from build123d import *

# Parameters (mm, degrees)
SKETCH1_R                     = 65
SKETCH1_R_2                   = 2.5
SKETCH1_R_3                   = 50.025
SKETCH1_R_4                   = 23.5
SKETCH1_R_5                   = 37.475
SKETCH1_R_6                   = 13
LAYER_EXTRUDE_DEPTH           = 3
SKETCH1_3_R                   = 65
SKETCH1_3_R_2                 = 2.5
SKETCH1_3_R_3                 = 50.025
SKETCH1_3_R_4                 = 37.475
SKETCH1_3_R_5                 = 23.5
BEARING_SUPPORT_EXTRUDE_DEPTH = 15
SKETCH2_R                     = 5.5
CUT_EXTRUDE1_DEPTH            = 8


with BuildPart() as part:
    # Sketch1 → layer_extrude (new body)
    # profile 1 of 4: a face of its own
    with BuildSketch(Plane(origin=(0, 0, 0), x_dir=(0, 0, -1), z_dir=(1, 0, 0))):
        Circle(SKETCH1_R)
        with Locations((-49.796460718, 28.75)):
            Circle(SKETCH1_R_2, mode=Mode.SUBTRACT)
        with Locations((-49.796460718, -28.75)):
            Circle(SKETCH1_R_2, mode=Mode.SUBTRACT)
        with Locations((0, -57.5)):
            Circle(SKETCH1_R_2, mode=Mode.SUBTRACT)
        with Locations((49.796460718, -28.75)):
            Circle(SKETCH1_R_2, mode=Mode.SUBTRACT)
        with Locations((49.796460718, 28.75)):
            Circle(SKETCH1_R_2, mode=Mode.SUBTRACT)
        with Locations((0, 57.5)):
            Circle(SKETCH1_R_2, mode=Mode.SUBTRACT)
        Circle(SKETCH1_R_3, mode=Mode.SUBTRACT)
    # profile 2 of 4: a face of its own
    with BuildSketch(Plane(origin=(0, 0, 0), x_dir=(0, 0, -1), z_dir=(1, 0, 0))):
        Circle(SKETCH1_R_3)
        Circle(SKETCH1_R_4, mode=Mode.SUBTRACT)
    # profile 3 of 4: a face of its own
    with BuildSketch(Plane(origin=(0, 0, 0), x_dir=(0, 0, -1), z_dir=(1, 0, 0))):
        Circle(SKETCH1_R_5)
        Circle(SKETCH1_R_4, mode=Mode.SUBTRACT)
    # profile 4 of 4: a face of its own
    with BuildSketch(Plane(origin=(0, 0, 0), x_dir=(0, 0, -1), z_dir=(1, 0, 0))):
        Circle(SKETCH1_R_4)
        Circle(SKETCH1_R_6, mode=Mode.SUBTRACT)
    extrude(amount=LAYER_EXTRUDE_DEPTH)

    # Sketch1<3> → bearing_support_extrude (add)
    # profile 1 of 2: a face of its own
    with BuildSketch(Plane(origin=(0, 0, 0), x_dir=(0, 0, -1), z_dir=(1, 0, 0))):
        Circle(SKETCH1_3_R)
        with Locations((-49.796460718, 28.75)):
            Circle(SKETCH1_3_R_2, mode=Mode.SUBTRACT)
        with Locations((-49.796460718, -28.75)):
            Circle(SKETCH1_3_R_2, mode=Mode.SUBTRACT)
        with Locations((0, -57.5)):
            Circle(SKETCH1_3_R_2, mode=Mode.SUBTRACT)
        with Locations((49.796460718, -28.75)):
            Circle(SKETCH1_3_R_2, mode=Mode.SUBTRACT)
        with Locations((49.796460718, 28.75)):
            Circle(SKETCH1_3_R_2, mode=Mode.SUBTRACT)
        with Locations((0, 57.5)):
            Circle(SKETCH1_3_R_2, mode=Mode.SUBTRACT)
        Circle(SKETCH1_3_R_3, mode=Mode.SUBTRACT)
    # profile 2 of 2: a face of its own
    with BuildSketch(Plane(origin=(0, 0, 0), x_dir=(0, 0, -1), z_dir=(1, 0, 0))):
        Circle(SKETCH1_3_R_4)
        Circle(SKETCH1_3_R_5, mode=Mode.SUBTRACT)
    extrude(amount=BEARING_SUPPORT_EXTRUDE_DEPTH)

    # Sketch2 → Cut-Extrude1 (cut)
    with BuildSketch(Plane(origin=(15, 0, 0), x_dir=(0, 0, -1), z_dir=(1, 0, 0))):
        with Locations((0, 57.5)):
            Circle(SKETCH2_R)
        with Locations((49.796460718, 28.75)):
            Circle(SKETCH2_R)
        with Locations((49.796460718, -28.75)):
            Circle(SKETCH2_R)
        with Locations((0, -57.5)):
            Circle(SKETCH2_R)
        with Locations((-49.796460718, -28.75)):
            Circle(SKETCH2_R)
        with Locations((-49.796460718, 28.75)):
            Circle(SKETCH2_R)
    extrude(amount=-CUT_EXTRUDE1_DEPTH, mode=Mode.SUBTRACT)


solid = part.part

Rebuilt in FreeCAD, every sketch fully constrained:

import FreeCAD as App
import Part
import Sketcher

V = App.Vector
Q = App.Units.Quantity

doc = App.newDocument("Part")
params = doc.addObject("Spreadsheet::Sheet", "Params")
for row, (alias, value) in enumerate([
    ("sketch1_diameter", "130 mm"),
    ("sketch1_diameter2", "5 mm"),
    ("sketch1_diameter3", "26 mm"),
    ("pad1_length", "3 mm"),
    ("sketch2_diameter", "130 mm"),
    ("sketch2_diameter2", "5 mm"),
    ("sketch2_diameter3", "47 mm"),
    ("sketch2_diameter4", "100.05 mm"),
    ("sketch2_diameter5", "74.95 mm"),
    ("pad2_length", "15 mm"),
    ("sketch3_diameter", "11 mm"),
    ("pocket1_length", "8 mm"),
], start=1):
    params.set(f"A{row}", alias)
    params.set(f"B{row}", "=" + value)
    params.setAlias(f"B{row}", alias)

body = doc.addObject("PartDesign::Body", "Body")

# Sketch on YZ plane
sketch1 = doc.addObject("Sketcher::SketchObject", "Sketch")
body.addObject(sketch1)
sketch1.AttachmentSupport = (doc.YZ_Plane, [""])
sketch1.MapMode = "FlatFace"
sketch1.addGeometry(Part.Circle(V(0, 0, 0), V(0, 0, 1), 65), False)
sketch1.addGeometry(Part.Circle(V(-28.8, 49.8, 0), V(0, 0, 1), 2.5), False)
sketch1.addGeometry(Part.Circle(V(-57.5, 0, 0), V(0, 0, 1), 2.5), False)
sketch1.addGeometry(Part.Circle(V(-28.8, -49.8, 0), V(0, 0, 1), 2.5), False)
sketch1.addGeometry(Part.Circle(V(28.8, 49.8, 0), V(0, 0, 1), 2.5), False)
sketch1.addGeometry(Part.Circle(V(28.8, -49.8, 0), V(0, 0, 1), 2.5), False)
sketch1.addGeometry(Part.Circle(V(57.5, 0, 0), V(0, 0, 1), 2.5), False)
sketch1.addGeometry(Part.Circle(V(0, 0, 0), V(0, 0, 1), 13), False)
sketch1.addConstraint(Sketcher.Constraint("Coincident", 0, 3, -1, 1))
sketch1.addConstraint(Sketcher.Constraint("Coincident", 7, 3, -1, 1))
sketch1.addConstraint(Sketcher.Constraint("Equal", 1, 2))
sketch1.addConstraint(Sketcher.Constraint("Equal", 2, 3))
sketch1.addConstraint(Sketcher.Constraint("Equal", 3, 4))
sketch1.addConstraint(Sketcher.Constraint("Equal", 4, 5))
sketch1.addConstraint(Sketcher.Constraint("Equal", 5, 6))
sketch1.addConstraint(Sketcher.Constraint("Symmetric", 3, 3, 4, 3, -1, 1))
sketch1.addConstraint(Sketcher.Constraint("Symmetric", 1, 3, 5, 3, -1, 1))
sketch1.addConstraint(Sketcher.Constraint("Symmetric", 2, 3, 6, 3, -1, 1))
sketch1.addConstraint(Sketcher.Constraint("Symmetric", 1, 3, 4, 3, -2))
sketch1.addConstraint(Sketcher.Constraint("PointOnObject", 2, 3, -1))
sketch1.addConstraint(Sketcher.Constraint("Diameter", 0, Q("130 mm")))
sketch1.addConstraint(Sketcher.Constraint("Diameter", 1, Q("5 mm")))
sketch1.addConstraint(Sketcher.Constraint("Diameter", 7, Q("26 mm")))
sketch1.addConstraint(Sketcher.Constraint("DistanceX", 2, 3, -1, 1, Q("57.5 mm")))
sketch1.addConstraint(Sketcher.Constraint("DistanceX", 1, 3, 4, 3, Q("57.5 mm")))
sketch1.addConstraint(Sketcher.Constraint("DistanceY", -1, 1, 1, 3, Q("49.796461 mm")))
sketch1.setExpression("Constraints[12]", "Params.sketch1_diameter")
sketch1.setExpression("Constraints[13]", "Params.sketch1_diameter2")
sketch1.setExpression("Constraints[14]", "Params.sketch1_diameter3")
pad1 = doc.addObject("PartDesign::Pad", "Pad")
body.addObject(pad1)
pad1.Profile = sketch1
pad1.setExpression("Length", "Params.pad1_length")

# Sketch on YZ plane
sketch2 = doc.addObject("Sketcher::SketchObject", "Sketch001")
body.addObject(sketch2)
sketch2.AttachmentSupport = (doc.YZ_Plane, [""])
sketch2.MapMode = "FlatFace"
sketch2.addGeometry(Part.Circle(V(0, 0, 0), V(0, 0, 1), 65), False)
sketch2.addGeometry(Part.Circle(V(-28.8, 49.8, 0), V(0, 0, 1), 2.5), False)
sketch2.addGeometry(Part.Circle(V(-57.5, 0, 0), V(0, 0, 1), 2.5), False)
sketch2.addGeometry(Part.Circle(V(-28.8, -49.8, 0), V(0, 0, 1), 2.5), False)
sketch2.addGeometry(Part.Circle(V(28.8, 49.8, 0), V(0, 0, 1), 2.5), False)
sketch2.addGeometry(Part.Circle(V(0, 0, 0), V(0, 0, 1), 50), False)
sketch2.addGeometry(Part.Circle(V(28.8, -49.8, 0), V(0, 0, 1), 2.5), False)
sketch2.addGeometry(Part.Circle(V(57.5, 0, 0), V(0, 0, 1), 2.5), False)
sketch2.addGeometry(Part.Circle(V(0, 0, 0), V(0, 0, 1), 37.5), False)
sketch2.addGeometry(Part.Circle(V(0, 0, 0), V(0, 0, 1), 23.5), False)
sketch2.addConstraint(Sketcher.Constraint("Coincident", 0, 3, -1, 1))
sketch2.addConstraint(Sketcher.Constraint("Coincident", 5, 3, -1, 1))
sketch2.addConstraint(Sketcher.Constraint("Coincident", 8, 3, -1, 1))
sketch2.addConstraint(Sketcher.Constraint("Coincident", 9, 3, -1, 1))
sketch2.addConstraint(Sketcher.Constraint("Equal", 1, 2))
sketch2.addConstraint(Sketcher.Constraint("Equal", 2, 3))
sketch2.addConstraint(Sketcher.Constraint("Equal", 3, 4))
sketch2.addConstraint(Sketcher.Constraint("Equal", 4, 6))
sketch2.addConstraint(Sketcher.Constraint("Equal", 6, 7))
sketch2.addConstraint(Sketcher.Constraint("Symmetric", 3, 3, 4, 3, -1, 1))
sketch2.addConstraint(Sketcher.Constraint("Symmetric", 1, 3, 6, 3, -1, 1))
sketch2.addConstraint(Sketcher.Constraint("Symmetric", 2, 3, 7, 3, -1, 1))
sketch2.addConstraint(Sketcher.Constraint("Symmetric", 1, 3, 4, 3, -2))
sketch2.addConstraint(Sketcher.Constraint("PointOnObject", 2, 3, -1))
sketch2.addConstraint(Sketcher.Constraint("Diameter", 0, Q("130 mm")))
sketch2.addConstraint(Sketcher.Constraint("Diameter", 1, Q("5 mm")))
sketch2.addConstraint(Sketcher.Constraint("Diameter", 9, Q("47 mm")))
sketch2.addConstraint(Sketcher.Constraint("Diameter", 5, Q("100.05 mm")))
sketch2.addConstraint(Sketcher.Constraint("Diameter", 8, Q("74.95 mm")))
sketch2.addConstraint(Sketcher.Constraint("DistanceX", 2, 3, -1, 1, Q("57.5 mm")))
sketch2.addConstraint(Sketcher.Constraint("DistanceX", 1, 3, 4, 3, Q("57.5 mm")))
sketch2.addConstraint(Sketcher.Constraint("DistanceY", -1, 1, 1, 3, Q("49.796461 mm")))
sketch2.setExpression("Constraints[14]", "Params.sketch2_diameter")
sketch2.setExpression("Constraints[15]", "Params.sketch2_diameter2")
sketch2.setExpression("Constraints[16]", "Params.sketch2_diameter3")
sketch2.setExpression("Constraints[17]", "Params.sketch2_diameter4")
sketch2.setExpression("Constraints[18]", "Params.sketch2_diameter5")
pad2 = doc.addObject("PartDesign::Pad", "Pad001")
body.addObject(pad2)
pad2.Profile = sketch2
pad2.setExpression("Length", "Params.pad2_length")

# Sketch on YZ plane
sketch3 = doc.addObject("Sketcher::SketchObject", "Sketch002")
body.addObject(sketch3)
sketch3.AttachmentSupport = (doc.YZ_Plane, [""])
sketch3.MapMode = "FlatFace"
sketch3.AttachmentOffset = App.Placement(V(0, 0, 15), App.Rotation())
sketch3.addGeometry(Part.Circle(V(58, 0, 0), V(0, 0, 1), 6), False)
sketch3.addGeometry(Part.Circle(V(29, -50, 0), V(0, 0, 1), 6), False)
sketch3.addGeometry(Part.Circle(V(-29, -50, 0), V(0, 0, 1), 6), False)
sketch3.addGeometry(Part.Circle(V(-58, 0, 0), V(0, 0, 1), 6), False)
sketch3.addGeometry(Part.Circle(V(-29, 50, 0), V(0, 0, 1), 6), False)
sketch3.addGeometry(Part.Circle(V(29, 50, 0), V(0, 0, 1), 6), False)
sketch3.addConstraint(Sketcher.Constraint("Equal", 0, 1))
sketch3.addConstraint(Sketcher.Constraint("Equal", 1, 2))
sketch3.addConstraint(Sketcher.Constraint("Equal", 2, 3))
sketch3.addConstraint(Sketcher.Constraint("Equal", 3, 4))
sketch3.addConstraint(Sketcher.Constraint("Equal", 4, 5))
sketch3.addConstraint(Sketcher.Constraint("Symmetric", 0, 3, 3, 3, -1, 1))
sketch3.addConstraint(Sketcher.Constraint("Symmetric", 1, 3, 4, 3, -1, 1))
sketch3.addConstraint(Sketcher.Constraint("Symmetric", 2, 3, 5, 3, -1, 1))
sketch3.addConstraint(Sketcher.Constraint("Symmetric", 1, 3, 2, 3, -2))
sketch3.addConstraint(Sketcher.Constraint("PointOnObject", 0, 3, -1))
sketch3.addConstraint(Sketcher.Constraint("Diameter", 0, Q("11 mm")))
sketch3.addConstraint(Sketcher.Constraint("DistanceX", 3, 3, 0, 3, Q("115 mm")))
sketch3.addConstraint(Sketcher.Constraint("DistanceX", 2, 3, 1, 3, Q("57.5 mm")))
sketch3.addConstraint(Sketcher.Constraint("DistanceY", 1, 3, -1, 1, Q("49.796461 mm")))
sketch3.setExpression("Constraints[10]", "Params.sketch3_diameter")
pocket1 = doc.addObject("PartDesign::Pocket", "Pocket")
body.addObject(pocket1)
pocket1.Profile = sketch3
pocket1.setExpression("Length", "Params.pocket1_length")

doc.recompute()
